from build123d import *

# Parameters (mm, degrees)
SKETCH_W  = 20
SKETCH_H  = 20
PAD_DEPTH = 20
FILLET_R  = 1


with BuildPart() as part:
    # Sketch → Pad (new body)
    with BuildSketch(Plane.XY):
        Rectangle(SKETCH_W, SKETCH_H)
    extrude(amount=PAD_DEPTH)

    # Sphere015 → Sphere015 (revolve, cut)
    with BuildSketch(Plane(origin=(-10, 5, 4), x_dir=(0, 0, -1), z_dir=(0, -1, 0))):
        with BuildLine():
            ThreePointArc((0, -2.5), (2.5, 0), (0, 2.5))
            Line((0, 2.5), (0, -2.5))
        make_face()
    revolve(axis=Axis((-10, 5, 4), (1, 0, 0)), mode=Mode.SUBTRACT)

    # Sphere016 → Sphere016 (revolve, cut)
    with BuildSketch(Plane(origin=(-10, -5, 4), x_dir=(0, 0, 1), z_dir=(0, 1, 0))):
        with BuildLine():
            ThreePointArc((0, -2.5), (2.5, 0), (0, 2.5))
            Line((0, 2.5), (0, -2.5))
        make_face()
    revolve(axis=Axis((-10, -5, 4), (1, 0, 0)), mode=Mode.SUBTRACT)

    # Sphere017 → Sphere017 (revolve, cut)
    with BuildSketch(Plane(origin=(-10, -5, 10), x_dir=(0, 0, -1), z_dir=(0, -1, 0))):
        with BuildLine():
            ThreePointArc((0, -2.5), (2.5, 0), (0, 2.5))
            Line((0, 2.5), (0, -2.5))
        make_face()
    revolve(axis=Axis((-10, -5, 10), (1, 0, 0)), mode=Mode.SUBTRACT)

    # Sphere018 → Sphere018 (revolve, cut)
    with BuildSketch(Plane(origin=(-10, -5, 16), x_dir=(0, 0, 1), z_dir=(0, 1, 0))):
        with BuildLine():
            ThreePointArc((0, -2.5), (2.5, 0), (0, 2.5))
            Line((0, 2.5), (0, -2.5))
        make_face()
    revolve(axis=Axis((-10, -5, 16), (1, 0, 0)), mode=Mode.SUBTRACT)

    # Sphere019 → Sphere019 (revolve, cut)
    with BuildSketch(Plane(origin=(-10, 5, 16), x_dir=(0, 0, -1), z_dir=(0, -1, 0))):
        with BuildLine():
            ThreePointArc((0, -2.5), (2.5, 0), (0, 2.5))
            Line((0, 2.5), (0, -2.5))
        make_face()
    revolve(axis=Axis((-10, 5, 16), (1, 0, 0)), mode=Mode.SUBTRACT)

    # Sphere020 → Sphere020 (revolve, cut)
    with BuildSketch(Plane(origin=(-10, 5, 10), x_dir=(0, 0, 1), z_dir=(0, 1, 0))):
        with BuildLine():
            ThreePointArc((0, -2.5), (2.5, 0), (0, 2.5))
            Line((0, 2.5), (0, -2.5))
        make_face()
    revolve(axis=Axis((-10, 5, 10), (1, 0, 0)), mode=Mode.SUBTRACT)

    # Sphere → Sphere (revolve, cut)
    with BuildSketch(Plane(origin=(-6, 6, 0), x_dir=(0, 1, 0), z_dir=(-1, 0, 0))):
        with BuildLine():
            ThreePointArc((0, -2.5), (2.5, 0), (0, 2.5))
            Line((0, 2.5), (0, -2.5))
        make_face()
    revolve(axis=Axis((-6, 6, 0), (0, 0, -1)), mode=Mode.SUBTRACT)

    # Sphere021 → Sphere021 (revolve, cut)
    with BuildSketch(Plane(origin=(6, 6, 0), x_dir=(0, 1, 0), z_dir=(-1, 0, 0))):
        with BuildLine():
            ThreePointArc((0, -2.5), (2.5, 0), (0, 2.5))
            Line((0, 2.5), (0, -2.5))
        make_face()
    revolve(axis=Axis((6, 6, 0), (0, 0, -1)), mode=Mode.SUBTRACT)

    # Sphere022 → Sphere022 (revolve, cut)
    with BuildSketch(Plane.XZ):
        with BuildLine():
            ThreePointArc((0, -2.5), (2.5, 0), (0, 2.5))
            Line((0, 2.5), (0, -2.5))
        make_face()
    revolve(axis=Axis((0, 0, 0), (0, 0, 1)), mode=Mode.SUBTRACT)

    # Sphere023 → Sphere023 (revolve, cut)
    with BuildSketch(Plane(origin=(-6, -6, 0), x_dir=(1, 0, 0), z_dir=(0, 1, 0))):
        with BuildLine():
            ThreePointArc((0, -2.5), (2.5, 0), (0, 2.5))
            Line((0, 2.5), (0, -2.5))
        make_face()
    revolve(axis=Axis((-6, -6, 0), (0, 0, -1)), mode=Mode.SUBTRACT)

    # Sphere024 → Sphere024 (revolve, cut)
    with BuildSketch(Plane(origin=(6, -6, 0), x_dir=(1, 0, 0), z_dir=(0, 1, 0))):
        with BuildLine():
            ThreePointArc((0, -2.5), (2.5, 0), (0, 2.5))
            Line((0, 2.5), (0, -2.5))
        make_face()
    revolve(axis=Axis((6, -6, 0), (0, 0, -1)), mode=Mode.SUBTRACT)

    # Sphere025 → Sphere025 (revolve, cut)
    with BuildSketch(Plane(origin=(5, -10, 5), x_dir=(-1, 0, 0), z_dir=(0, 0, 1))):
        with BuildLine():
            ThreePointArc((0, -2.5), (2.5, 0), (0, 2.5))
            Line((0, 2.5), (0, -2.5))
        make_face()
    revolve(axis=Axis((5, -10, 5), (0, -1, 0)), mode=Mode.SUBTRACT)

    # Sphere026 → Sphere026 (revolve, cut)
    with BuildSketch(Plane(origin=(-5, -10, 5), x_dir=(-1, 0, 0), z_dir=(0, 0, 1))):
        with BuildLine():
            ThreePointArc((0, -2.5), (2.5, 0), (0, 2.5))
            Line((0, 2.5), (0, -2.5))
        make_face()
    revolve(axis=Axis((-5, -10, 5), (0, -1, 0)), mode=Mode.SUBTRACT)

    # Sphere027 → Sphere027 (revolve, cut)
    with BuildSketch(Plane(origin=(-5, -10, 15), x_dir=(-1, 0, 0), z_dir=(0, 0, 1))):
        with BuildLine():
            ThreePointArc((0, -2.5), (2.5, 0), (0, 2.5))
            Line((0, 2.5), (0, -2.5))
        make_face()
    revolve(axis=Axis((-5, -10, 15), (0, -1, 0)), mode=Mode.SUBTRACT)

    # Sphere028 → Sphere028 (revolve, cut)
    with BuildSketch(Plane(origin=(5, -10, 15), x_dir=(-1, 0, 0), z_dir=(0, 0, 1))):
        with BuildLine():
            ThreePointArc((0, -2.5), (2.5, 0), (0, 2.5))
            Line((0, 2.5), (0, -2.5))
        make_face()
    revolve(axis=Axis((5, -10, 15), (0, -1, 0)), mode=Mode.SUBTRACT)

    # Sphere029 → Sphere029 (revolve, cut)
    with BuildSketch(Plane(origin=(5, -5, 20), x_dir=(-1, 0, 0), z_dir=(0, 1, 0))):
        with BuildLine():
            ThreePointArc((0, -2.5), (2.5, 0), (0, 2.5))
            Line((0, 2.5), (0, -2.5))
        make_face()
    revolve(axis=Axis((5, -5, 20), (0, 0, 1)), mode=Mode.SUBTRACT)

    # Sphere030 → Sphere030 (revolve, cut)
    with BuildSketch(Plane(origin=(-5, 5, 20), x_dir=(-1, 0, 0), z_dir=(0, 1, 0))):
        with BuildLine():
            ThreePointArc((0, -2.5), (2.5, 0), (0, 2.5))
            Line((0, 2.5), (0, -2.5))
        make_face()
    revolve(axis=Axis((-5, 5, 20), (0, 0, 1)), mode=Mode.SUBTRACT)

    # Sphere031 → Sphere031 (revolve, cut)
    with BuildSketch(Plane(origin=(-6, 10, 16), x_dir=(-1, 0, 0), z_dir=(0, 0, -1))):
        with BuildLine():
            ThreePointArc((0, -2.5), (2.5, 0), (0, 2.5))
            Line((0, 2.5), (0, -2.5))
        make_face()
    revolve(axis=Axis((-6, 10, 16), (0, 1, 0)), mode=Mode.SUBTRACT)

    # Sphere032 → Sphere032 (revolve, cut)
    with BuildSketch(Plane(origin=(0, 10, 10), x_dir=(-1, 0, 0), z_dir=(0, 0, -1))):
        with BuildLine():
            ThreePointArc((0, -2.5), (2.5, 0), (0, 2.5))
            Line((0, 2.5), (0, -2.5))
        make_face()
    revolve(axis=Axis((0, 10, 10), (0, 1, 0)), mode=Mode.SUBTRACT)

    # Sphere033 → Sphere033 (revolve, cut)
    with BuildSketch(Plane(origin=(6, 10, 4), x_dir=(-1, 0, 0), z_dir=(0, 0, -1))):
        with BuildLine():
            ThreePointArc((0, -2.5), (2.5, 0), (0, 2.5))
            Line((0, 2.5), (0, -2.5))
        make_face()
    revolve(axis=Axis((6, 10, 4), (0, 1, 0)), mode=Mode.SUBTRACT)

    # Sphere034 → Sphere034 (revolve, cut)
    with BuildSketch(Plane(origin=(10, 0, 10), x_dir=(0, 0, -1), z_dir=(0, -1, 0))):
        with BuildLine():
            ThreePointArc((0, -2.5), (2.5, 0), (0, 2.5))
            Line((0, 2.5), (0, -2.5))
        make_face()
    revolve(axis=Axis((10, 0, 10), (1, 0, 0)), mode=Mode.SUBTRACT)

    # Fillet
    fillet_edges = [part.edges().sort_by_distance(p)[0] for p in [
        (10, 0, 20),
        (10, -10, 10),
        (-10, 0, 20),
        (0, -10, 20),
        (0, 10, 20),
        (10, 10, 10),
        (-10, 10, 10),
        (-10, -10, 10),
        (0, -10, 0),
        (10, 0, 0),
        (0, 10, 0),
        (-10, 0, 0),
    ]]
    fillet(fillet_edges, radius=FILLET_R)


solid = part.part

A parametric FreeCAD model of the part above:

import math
import FreeCAD as App
import Part
import Sketcher
from FreeCAD import Vector
Q = App.Units.Quantity


def edges_at(feature, points):
    """Names of the edges that pass closest to the given points."""
    edges = feature.Shape.Edges
    near = lambda p: min(range(len(edges)), key=lambda i: edges[i].distToShape(Part.Vertex(*p))[0])
    return sorted({f"Edge{near(p) + 1}" for p in points})


def add_polygon(sketch, points):
    """Adds a closed chain of lines whose ends are joined by coincident constraints."""
    first, n = sketch.GeometryCount, len(points)
    for a, b in zip(points, points[1:] + points[:1]):
        sketch.addGeometry(Part.LineSegment(App.Vector(*a, 0), App.Vector(*b, 0)), False)
    for i in range(n):
        sketch.addConstraint(Sketcher.Constraint("Coincident", first + i, 2, first + (i + 1) % n, 1))

doc = App.newDocument("Part")
params = doc.addObject("Spreadsheet::Sheet", "Params")
for row, (alias, value) in enumerate([
    ("sketch1_width", "20 mm"),
    ("pad1_length", "20 mm"),
    ("sketch2_radius", "2.5 mm"),
    ("groove_angle", "360 deg"),
    ("sketch3_radius", "2.5 mm"),
    ("groove2_angle", "360 deg"),
    ("sketch4_radius", "2.5 mm"),
    ("groove3_angle", "360 deg"),
    ("sketch5_radius", "2.5 mm"),
    ("groove4_angle", "360 deg"),
    ("sketch6_radius", "2.5 mm"),
    ("groove5_angle", "360 deg"),
    ("sketch7_radius", "2.5 mm"),
    ("groove6_angle", "360 deg"),
    ("sketch8_radius", "2.5 mm"),
    ("groove7_angle", "360 deg"),
    ("sketch9_radius", "2.5 mm"),
    ("groove8_angle", "360 deg"),
    ("sketch10_radius", "2.5 mm"),
    ("groove9_angle", "360 deg"),
    ("sketch11_radius", "2.5 mm"),
    ("groove10_angle", "360 deg"),
    ("sketch12_radius", "2.5 mm"),
    ("groove11_angle", "360 deg"),
    ("sketch13_radius", "2.5 mm"),
    ("groove12_angle", "360 deg"),
    ("sketch14_radius", "2.5 mm"),
    ("groove13_angle", "360 deg"),
    ("sketch15_radius", "2.5 mm"),
    ("groove14_angle", "360 deg"),
    ("sketch16_radius", "2.5 mm"),
    ("groove15_angle", "360 deg"),
    ("sketch17_radius", "2.5 mm"),
    ("groove16_angle", "360 deg"),
    ("sketch18_radius", "2.5 mm"),
    ("groove17_angle", "360 deg"),
    ("sketch19_radius", "2.5 mm"),
    ("groove18_angle", "360 deg"),
    ("sketch20_radius", "2.5 mm"),
    ("groove19_angle", "360 deg"),
    ("sketch21_radius", "2.5 mm"),
    ("groove20_angle", "360 deg"),
    ("sketch22_radius", "2.5 mm"),
    ("groove21_angle", "360 deg"),
    ("fillet_radius", "1 mm"),
], start=1):
    params.set(f"A{row}", alias)
    params.set(f"B{row}", "=" + value)
    params.setAlias(f"B{row}", alias)

body = doc.addObject("PartDesign::Body", "Body")

# Sketch on XY plane
sketch1 = doc.addObject("Sketcher::SketchObject", "Sketch")
body.addObject(sketch1)
sketch1.AttachmentSupport = (doc.XY_Plane, [""])
sketch1.MapMode = "FlatFace"
add_polygon(sketch1, [(-10, 10), (-10, -10), (10, -10), (10, 10)])  # lines 0-3
sketch1.addConstraint([
    Sketcher.Constraint("Vertical", 0),
    Sketcher.Constraint("Horizontal", 1),
    Sketcher.Constraint("Vertical", 2),
    Sketcher.Constraint("Horizontal", 3),
    Sketcher.Constraint("Symmetric", 0, 2, 2, 2, -1, 1),
    Sketcher.Constraint("Equal", 3, 0),
    Sketcher.Constraint("DistanceX", 1, 1, 1, 2, Q("20 mm")),
])
sketch1.setExpression("Constraints[10]", "Params.sketch1_width")
pad1 = doc.addObject("PartDesign::Pad", "Pad")
body.addObject(pad1)
pad1.Profile = sketch1
pad1.setExpression("Length", "Params.pad1_length")

# Sketch on XZ plane
sketch2 = doc.addObject("Sketcher::SketchObject", "Sketch001")
body.addObject(sketch2)
sketch2.AttachmentSupport = (doc.XZ_Plane, [""])
sketch2.MapMode = "FlatFace"
sketch2.AttachmentOffset = App.Placement(Vector(0, 0, -5), App.Rotation())
sketch2.addGeometry([
    Part.ArcOfCircle(Part.Circle(Vector(-10, 4, 0), Vector(0, 0, 1), 2.5), math.radians(180), math.radians(360)),
    Part.LineSegment(Vector(-7.5, 4, 0), Vector(-12.5, 4, 0)),
], False)
sketch2.addGeometry(Part.LineSegment(Vector(-12.5, 4, 0), Vector(-7.5, 4, 0)), True)  # axis
sketch2.addConstraint([
    Sketcher.Constraint("Coincident", 0, 1, 1, 2),
    Sketcher.Constraint("Coincident", 1, 1, 0, 2),
    Sketcher.Constraint("Horizontal", 1),
    Sketcher.Constraint("Horizontal", 2),
    Sketcher.Constraint("Coincident", 2, 1, 0, 1),
    Sketcher.Constraint("Equal", 1, 2),
    Sketcher.Constraint("Radius", 0, Q("2.5 mm")),
    Sketcher.Constraint("DistanceX", 0, 3, -1, 1, Q("10 mm")),
    Sketcher.Constraint("DistanceY", -1, 1, 0, 3, Q("4 mm")),
    Sketcher.Constraint("DistanceY", -1, 1, 0, 1, Q("4 mm")),
])
sketch2.setExpression("Constraints[6]", "Params.sketch2_radius")
groove = doc.addObject("PartDesign::Groove", "Groove")
body.addObject(groove)
groove.Profile = sketch2
groove.ReferenceAxis = (sketch2, ["Axis0"])
groove.setExpression("Angle", "Params.groove_angle")

# Sketch on XZ plane
sketch3 = doc.addObject("Sketcher::SketchObject", "Sketch002")
body.addObject(sketch3)
sketch3.AttachmentSupport = (doc.XZ_Plane, [""])
sketch3.MapMode = "FlatFace"
sketch3.AttachmentOffset = App.Placement(Vector(0, 0, 5), App.Rotation())
sketch3.addGeometry([
    Part.ArcOfCircle(Part.Circle(Vector(-10, 4, 0), Vector(0, 0, 1), 2.5), math.radians(0), math.radians(180)),
    Part.LineSegment(Vector(-7.5, 4, 0), Vector(-12.5, 4, 0)),
], False)
sketch3.addGeometry(Part.LineSegment(Vector(-12.5, 4, 0), Vector(-7.5, 4, 0)), True)  # axis
sketch3.addConstraint([
    Sketcher.Constraint("Coincident", 0, 1, 1, 1),
    Sketcher.Constraint("Coincident", 1, 2, 0, 2),
    Sketcher.Constraint("Horizontal", 1),
    Sketcher.Constraint("Horizontal", 2),
    Sketcher.Constraint("Coincident", 2, 1, 1, 2),
    Sketcher.Constraint("Equal", 1, 2),
    Sketcher.Constraint("Radius", 0, Q("2.5 mm")),
    Sketcher.Constraint("DistanceX", 0, 3, -1, 1, Q("10 mm")),
    Sketcher.Constraint("DistanceY", -1, 1, 0, 3, Q("4 mm")),
    Sketcher.Constraint("DistanceY", -1, 1, 0, 1, Q("4 mm")),
])
sketch3.setExpression("Constraints[6]", "Params.sketch3_radius")
groove2 = doc.addObject("PartDesign::Groove", "Groove001")
body.addObject(groove2)
groove2.Profile = sketch3
groove2.ReferenceAxis = (sketch3, ["Axis0"])
groove2.setExpression("Angle", "Params.groove2_angle")

# Sketch on XZ plane
sketch4 = doc.addObject("Sketcher::SketchObject", "Sketch003")
body.addObject(sketch4)
sketch4.AttachmentSupport = (doc.XZ_Plane, [""])
sketch4.MapMode = "FlatFace"
sketch4.AttachmentOffset = App.Placement(Vector(0, 0, 5), App.Rotation())
sketch4.addGeometry([
    Part.ArcOfCircle(Part.Circle(Vector(-10, 10, 0), Vector(0, 0, 1), 2.5), math.radians(180), math.radians(360)),
    Part.LineSegment(Vector(-7.5, 10, 0), Vector(-12.5, 10, 0)),
], False)
sketch4.addGeometry(Part.LineSegment(Vector(-12.5, 10, 0), Vector(-7.5, 10, 0)), True)  # axis
sketch4.addConstraint([
    Sketcher.Constraint("Coincident", 0, 1, 1, 2),
    Sketcher.Constraint("Coincident", 1, 1, 0, 2),
    Sketcher.Constraint("Horizontal", 1),
    Sketcher.Constraint("Horizontal", 2),
    Sketcher.Constraint("Coincident", 2, 1, 0, 1),
    Sketcher.Constraint("Equal", 1, 2),
    Sketcher.Constraint("Radius", 0, Q("2.5 mm")),
    Sketcher.Constraint("DistanceX", 0, 3, -1, 1, Q("10 mm")),
    Sketcher.Constraint("DistanceY", -1, 1, 0, 3, Q("10 mm")),
    Sketcher.Constraint("DistanceY", -1, 1, 0, 1, Q("10 mm")),
])
sketch4.setExpression("Constraints[6]", "Params.sketch4_radius")
groove3 = doc.addObject("PartDesign::Groove", "Groove002")
body.addObject(groove3)
groove3.Profile = sketch4
groove3.ReferenceAxis = (sketch4, ["Axis0"])
groove3.setExpression("Angle", "Params.groove3_angle")

# Sketch on XZ plane
sketch5 = doc.addObject("Sketcher::SketchObject", "Sketch004")
body.addObject(sketch5)
sketch5.AttachmentSupport = (doc.XZ_Plane, [""])
sketch5.MapMode = "FlatFace"
sketch5.AttachmentOffset = App.Placement(Vector(0, 0, 5), App.Rotation())
sketch5.addGeometry([
    Part.ArcOfCircle(Part.Circle(Vector(-10, 16, 0), Vector(0, 0, 1), 2.5), math.radians(0), math.radians(180)),
    Part.LineSegment(Vector(-7.5, 16, 0), Vector(-12.5, 16, 0)),
], False)
sketch5.addGeometry(Part.LineSegment(Vector(-12.5, 16, 0), Vector(-7.5, 16, 0)), True)  # axis
sketch5.addConstraint([
    Sketcher.Constraint("Coincident", 0, 1, 1, 1),
    Sketcher.Constraint("Coincident", 1, 2, 0, 2),
    Sketcher.Constraint("Horizontal", 1),
    Sketcher.Constraint("Horizontal", 2),
    Sketcher.Constraint("Coincident", 2, 1, 1, 2),
    Sketcher.Constraint("Equal", 1, 2),
    Sketcher.Constraint("Radius", 0, Q("2.5 mm")),
    Sketcher.Constraint("DistanceX", 0, 3, -1, 1, Q("10 mm")),
    Sketcher.Constraint("DistanceY", -1, 1, 0, 3, Q("16 mm")),
    Sketcher.Constraint("DistanceY", -1, 1, 0, 1, Q("16 mm")),
])
sketch5.setExpression("Constraints[6]", "Params.sketch5_radius")
groove4 = doc.addObject("PartDesign::Groove", "Groove003")
body.addObject(groove4)
groove4.Profile = sketch5
groove4.ReferenceAxis = (sketch5, ["Axis0"])
groove4.setExpression("Angle", "Params.groove4_angle")

# Sketch on XZ plane
sketch6 = doc.addObject("Sketcher::SketchObject", "Sketch005")
body.addObject(sketch6)
sketch6.AttachmentSupport = (doc.XZ_Plane, [""])
sketch6.MapMode = "FlatFace"
sketch6.AttachmentOffset = App.Placement(Vector(0, 0, -5), App.Rotation())
sketch6.addGeometry([
    Part.ArcOfCircle(Part.Circle(Vector(-10, 16, 0), Vector(0, 0, 1), 2.5), math.radians(180), math.radians(360)),
    Part.LineSegment(Vector(-7.5, 16, 0), Vector(-12.5, 16, 0)),
], False)
sketch6.addGeometry(Part.LineSegment(Vector(-12.5, 16, 0), Vector(-7.5, 16, 0)), True)  # axis
sketch6.addConstraint([
    Sketcher.Constraint("Coincident", 0, 1, 1, 2),
    Sketcher.Constraint("Coincident", 1, 1, 0, 2),
    Sketcher.Constraint("Horizontal", 1),
    Sketcher.Constraint("Horizontal", 2),
    Sketcher.Constraint("Coincident", 2, 1, 0, 1),
    Sketcher.Constraint("Equal", 1, 2),
    Sketcher.Constraint("Radius", 0, Q("2.5 mm")),
    Sketcher.Constraint("DistanceX", 0, 3, -1, 1, Q("10 mm")),
    Sketcher.Constraint("DistanceY", -1, 1, 0, 3, Q("16 mm")),
    Sketcher.Constraint("DistanceY", -1, 1, 0, 1, Q("16 mm")),
])
sketch6.setExpression("Constraints[6]", "Params.sketch6_radius")
groove5 = doc.addObject("PartDesign::Groove", "Groove004")
body.addObject(groove5)
groove5.Profile = sketch6
groove5.ReferenceAxis = (sketch6, ["Axis0"])
groove5.setExpression("Angle", "Params.groove5_angle")

# Sketch on XZ plane
sketch7 = doc.addObject("Sketcher::SketchObject", "Sketch006")
body.addObject(sketch7)
sketch7.AttachmentSupport = (doc.XZ_Plane, [""])
sketch7.MapMode = "FlatFace"
sketch7.AttachmentOffset = App.Placement(Vector(0, 0, -5), App.Rotation())
sketch7.addGeometry([
    Part.ArcOfCircle(Part.Circle(Vector(-10, 10, 0), Vector(0, 0, 1), 2.5), math.radians(0), math.radians(180)),
    Part.LineSegment(Vector(-7.5, 10, 0), Vector(-12.5, 10, 0)),
], False)
sketch7.addGeometry(Part.LineSegment(Vector(-12.5, 10, 0), Vector(-7.5, 10, 0)), True)  # axis
sketch7.addConstraint([
    Sketcher.Constraint("Coincident", 0, 1, 1, 1),
    Sketcher.Constraint("Coincident", 1, 2, 0, 2),
    Sketcher.Constraint("Horizontal", 1),
    Sketcher.Constraint("Horizontal", 2),
    Sketcher.Constraint("Coincident", 2, 1, 1, 2),
    Sketcher.Constraint("Equal", 1, 2),
    Sketcher.Constraint("Radius", 0, Q("2.5 mm")),
    Sketcher.Constraint("DistanceX", 0, 3, -1, 1, Q("10 mm")),
    Sketcher.Constraint("DistanceY", -1, 1, 0, 3, Q("10 mm")),
    Sketcher.Constraint("DistanceY", -1, 1, 0, 1, Q("10 mm")),
])
sketch7.setExpression("Constraints[6]", "Params.sketch7_radius")
groove6 = doc.addObject("PartDesign::Groove", "Groove005")
body.addObject(groove6)
groove6.Profile = sketch7
groove6.ReferenceAxis = (sketch7, ["Axis0"])
groove6.setExpression("Angle", "Params.groove6_angle")

# Sketch on YZ plane
sketch8 = doc.addObject("Sketcher::SketchObject", "Sketch007")
body.addObject(sketch8)
sketch8.AttachmentSupport = (doc.YZ_Plane, [""])
sketch8.MapMode = "FlatFace"
sketch8.AttachmentOffset = App.Placement(Vector(0, 0, -6), App.Rotation())
sketch8.addGeometry([
    Part.ArcOfCircle(Part.Circle(Vector(6, 0, 0), Vector(0, 0, 1), 2.5), math.radians(-90), math.radians(90)),
    Part.LineSegment(Vector(6, -2.5, 0), Vector(6, 2.5, 0)),
], False)
sketch8.addGeometry(Part.LineSegment(Vector(6, 2.5, 0), Vector(6, -2.5, 0)), True)  # axis
sketch8.addConstraint([
    Sketcher.Constraint("Coincident", 0, 1, 1, 1),
    Sketcher.Constraint("Coincident", 1, 2, 0, 2),
    Sketcher.Constraint("Vertical", 1),
    Sketcher.Constraint("Vertical", 2),
    Sketcher.Constraint("Coincident", 2, 1, 1, 2),
    Sketcher.Constraint("PointOnObject", 0, 3, -1),
    Sketcher.Constraint("Equal", 1, 2),
    Sketcher.Constraint("Radius", 0, Q("2.5 mm")),
    Sketcher.Constraint("DistanceX", -1, 1, 0, 3, Q("6 mm")),
    Sketcher.Constraint("DistanceX", -1, 1, 0, 1, Q("6 mm")),
])
sketch8.setExpression("Constraints[7]", "Params.sketch8_radius")
groove7 = doc.addObject("PartDesign::Groove", "Groove006")
body.addObject(groove7)
groove7.Profile = sketch8
groove7.ReferenceAxis = (sketch8, ["Axis0"])
groove7.setExpression("Angle", "Params.groove7_angle")

# Sketch on YZ plane
sketch9 = doc.addObject("Sketcher::SketchObject", "Sketch008")
body.addObject(sketch9)
sketch9.AttachmentSupport = (doc.YZ_Plane, [""])
sketch9.MapMode = "FlatFace"
sketch9.AttachmentOffset = App.Placement(Vector(0, 0, 6), App.Rotation())
sketch9.addGeometry([
    Part.ArcOfCircle(Part.Circle(Vector(6, 0, 0), Vector(0, 0, 1), 2.5), math.radians(-90), math.radians(90)),
    Part.LineSegment(Vector(6, -2.5, 0), Vector(6, 2.5, 0)),
], False)
sketch9.addGeometry(Part.LineSegment(Vector(6, 2.5, 0), Vector(6, -2.5, 0)), True)  # axis
sketch9.addConstraint([
    Sketcher.Constraint("Coincident", 0, 1, 1, 1),
    Sketcher.Constraint("Coincident", 1, 2, 0, 2),
    Sketcher.Constraint("Vertical", 1),
    Sketcher.Constraint("Vertical", 2),
    Sketcher.Constraint("Coincident", 2, 1, 1, 2),
    Sketcher.Constraint("PointOnObject", 0, 3, -1),
    Sketcher.Constraint("Equal", 1, 2),
    Sketcher.Constraint("Radius", 0, Q("2.5 mm")),
    Sketcher.Constraint("DistanceX", -1, 1, 0, 3, Q("6 mm")),
    Sketcher.Constraint("DistanceX", -1, 1, 0, 1, Q("6 mm")),
])
sketch9.setExpression("Constraints[7]", "Params.sketch9_radius")
groove8 = doc.addObject("PartDesign::Groove", "Groove007")
body.addObject(groove8)
groove8.Profile = sketch9
groove8.ReferenceAxis = (sketch9, ["Axis0"])
groove8.setExpression("Angle", "Params.groove8_angle")

# Sketch on XZ plane
sketch10 = doc.addObject("Sketcher::SketchObject", "Sketch009")
body.addObject(sketch10)
sketch10.AttachmentSupport = (doc.XZ_Plane, [""])
sketch10.MapMode = "FlatFace"
sketch10.addGeometry([
    Part.ArcOfCircle(Part.Circle(Vector(0, 0, 0), Vector(0, 0, 1), 2.5), math.radians(-90), math.radians(90)),
    Part.LineSegment(Vector(0, 2.5, 0), Vector(0, -2.5, 0)),
], False)
sketch10.addConstraint([
    Sketcher.Constraint("Coincident", 0, 1, 1, 2),
    Sketcher.Constraint("Coincident", 1, 1, 0, 2),
    Sketcher.Constraint("Vertical", 1),
    Sketcher.Constraint("Coincident", 0, 3, -1, 1),
    Sketcher.Constraint("PointOnObject", 0, 1, -2),
    Sketcher.Constraint("Radius", 0, Q("2.5 mm")),
])
sketch10.setExpression("Constraints[5]", "Params.sketch10_radius")
groove9 = doc.addObject("PartDesign::Groove", "Groove008")
body.addObject(groove9)
groove9.Profile = sketch10
groove9.ReferenceAxis = (sketch10, ["V_Axis"])
groove9.setExpression("Angle", "Params.groove9_angle")

# Sketch on XZ plane
sketch11 = doc.addObject("Sketcher::SketchObject", "Sketch010")
body.addObject(sketch11)
sketch11.AttachmentSupport = (doc.XZ_Plane, [""])
sketch11.MapMode = "FlatFace"
sketch11.AttachmentOffset = App.Placement(Vector(0, 0, 6), App.Rotation())
sketch11.addGeometry([
    Part.ArcOfCircle(Part.Circle(Vector(-6, 0, 0), Vector(0, 0, 1), 2.5), math.radians(-90), math.radians(90)),
    Part.LineSegment(Vector(-6, -2.5, 0), Vector(-6, 2.5, 0)),
], False)
sketch11.addGeometry(Part.LineSegment(Vector(-6, 2.5, 0), Vector(-6, -2.5, 0)), True)  # axis
sketch11.addConstraint([
    Sketcher.Constraint("Coincident", 0, 1, 1, 1),
    Sketcher.Constraint("Coincident", 1, 2, 0, 2),
    Sketcher.Constraint("Vertical", 1),
    Sketcher.Constraint("Vertical", 2),
    Sketcher.Constraint("Coincident", 2, 1, 1, 2),
    Sketcher.Constraint("PointOnObject", 0, 3, -1),
    Sketcher.Constraint("Equal", 1, 2),
    Sketcher.Constraint("Radius", 0, Q("2.5 mm")),
    Sketcher.Constraint("DistanceX", 0, 3, -1, 1, Q("6 mm")),
    Sketcher.Constraint("DistanceX", 0, 1, -1, 1, Q("6 mm")),
])
sketch11.setExpression("Constraints[7]", "Params.sketch11_radius")
groove10 = doc.addObject("PartDesign::Groove", "Groove009")
body.addObject(groove10)
groove10.Profile = sketch11
groove10.ReferenceAxis = (sketch11, ["Axis0"])
groove10.setExpression("Angle", "Params.groove10_angle")

# Sketch on XZ plane
sketch12 = doc.addObject("Sketcher::SketchObject", "Sketch011")
body.addObject(sketch12)
sketch12.AttachmentSupport = (doc.XZ_Plane, [""])
sketch12.MapMode = "FlatFace"
sketch12.AttachmentOffset = App.Placement(Vector(0, 0, 6), App.Rotation())
sketch12.addGeometry([
    Part.ArcOfCircle(Part.Circle(Vector(6, 0, 0), Vector(0, 0, 1), 2.5), math.radians(-90), math.radians(90)),
    Part.LineSegment(Vector(6, -2.5, 0), Vector(6, 2.5, 0)),
], False)
sketch12.addGeometry(Part.LineSegment(Vector(6, 2.5, 0), Vector(6, -2.5, 0)), True)  # axis
sketch12.addConstraint([
    Sketcher.Constraint("Coincident", 0, 1, 1, 1),
    Sketcher.Constraint("Coincident", 1, 2, 0, 2),
    Sketcher.Constraint("Vertical", 1),
    Sketcher.Constraint("Vertical", 2),
    Sketcher.Constraint("Coincident", 2, 1, 1, 2),
    Sketcher.Constraint("PointOnObject", 0, 3, -1),
    Sketcher.Constraint("Equal", 1, 2),
    Sketcher.Constraint("Radius", 0, Q("2.5 mm")),
    Sketcher.Constraint("DistanceX", -1, 1, 0, 3, Q("6 mm")),
    Sketcher.Constraint("DistanceX", -1, 1, 0, 1, Q("6 mm")),
])
sketch12.setExpression("Constraints[7]", "Params.sketch12_radius")
groove11 = doc.addObject("PartDesign::Groove", "Groove010")
body.addObject(groove11)
groove11.Profile = sketch12
groove11.ReferenceAxis = (sketch12, ["Axis0"])
groove11.setExpression("Angle", "Params.groove11_angle")

# Sketch on XY plane
sketch13 = doc.addObject("Sketcher::SketchObject", "Sketch012")
body.addObject(sketch13)
sketch13.AttachmentSupport = (doc.XY_Plane, [""])
sketch13.MapMode = "FlatFace"
sketch13.AttachmentOffset = App.Placement(Vector(0, 0, 5), App.Rotation())
sketch13.addGeometry([
    Part.ArcOfCircle(Part.Circle(Vector(5, -10, 0), Vector(0, 0, 1), 2.5), math.radians(90), math.radians(270)),
    Part.LineSegment(Vector(5, -12.5, 0), Vector(5, -7.5, 0)),
], False)
sketch13.addGeometry(Part.LineSegment(Vector(5, -7.5, 0), Vector(5, -12.5, 0)), True)  # axis
sketch13.addConstraint([
    Sketcher.Constraint("Coincident", 0, 1, 1, 2),
    Sketcher.Constraint("Coincident", 1, 1, 0, 2),
    Sketcher.Constraint("Vertical", 1),
    Sketcher.Constraint("Vertical", 2),
    Sketcher.Constraint("Coincident", 2, 1, 0, 1),
    Sketcher.Constraint("Equal", 1, 2),
    Sketcher.Constraint("Radius", 0, Q("2.5 mm")),
    Sketcher.Constraint("DistanceX", -1, 1, 0, 3, Q("5 mm")),
    Sketcher.Constraint("DistanceY", 0, 3, -1, 1, Q("10 mm")),
    Sketcher.Constraint("DistanceX", -1, 1, 0, 1, Q("5 mm")),
])
sketch13.setExpression("Constraints[6]", "Params.sketch13_radius")
groove12 = doc.addObject("PartDesign::Groove", "Groove011")
body.addObject(groove12)
groove12.Profile = sketch13
groove12.ReferenceAxis = (sketch13, ["Axis0"])
groove12.setExpression("Angle", "Params.groove12_angle")

# Sketch on XY plane
sketch14 = doc.addObject("Sketcher::SketchObject", "Sketch013")
body.addObject(sketch14)
sketch14.AttachmentSupport = (doc.XY_Plane, [""])
sketch14.MapMode = "FlatFace"
sketch14.AttachmentOffset = App.Placement(Vector(0, 0, 5), App.Rotation())
sketch14.addGeometry([
    Part.ArcOfCircle(Part.Circle(Vector(-5, -10, 0), Vector(0, 0, 1), 2.5), math.radians(90), math.radians(270)),
    Part.LineSegment(Vector(-5, -12.5, 0), Vector(-5, -7.5, 0)),
], False)
sketch14.addGeometry(Part.LineSegment(Vector(-5, -7.5, 0), Vector(-5, -12.5, 0)), True)  # axis
sketch14.addConstraint([
    Sketcher.Constraint("Coincident", 0, 1, 1, 2),
    Sketcher.Constraint("Coincident", 1, 1, 0, 2),
    Sketcher.Constraint("Vertical", 1),
    Sketcher.Constraint("Vertical", 2),
    Sketcher.Constraint("Coincident", 2, 1, 0, 1),
    Sketcher.Constraint("Equal", 1, 2),
    Sketcher.Constraint("Radius", 0, Q("2.5 mm")),
    Sketcher.Constraint("DistanceX", 0, 3, -1, 1, Q("5 mm")),
    Sketcher.Constraint("DistanceY", 0, 3, -1, 1, Q("10 mm")),
    Sketcher.Constraint("DistanceX", 0, 1, -1, 1, Q("5 mm")),
])
sketch14.setExpression("Constraints[6]", "Params.sketch14_radius")
groove13 = doc.addObject("PartDesign::Groove", "Groove012")
body.addObject(groove13)
groove13.Profile = sketch14
groove13.ReferenceAxis = (sketch14, ["Axis0"])
groove13.setExpression("Angle", "Params.groove13_angle")

# Sketch on XY plane
sketch15 = doc.addObject("Sketcher::SketchObject", "Sketch014")
body.addObject(sketch15)
sketch15.AttachmentSupport = (doc.XY_Plane, [""])
sketch15.MapMode = "FlatFace"
sketch15.AttachmentOffset = App.Placement(Vector(0, 0, 15), App.Rotation())
sketch15.addGeometry([
    Part.ArcOfCircle(Part.Circle(Vector(-5, -10, 0), Vector(0, 0, 1), 2.5), math.radians(90), math.radians(270)),
    Part.LineSegment(Vector(-5, -12.5, 0), Vector(-5, -7.5, 0)),
], False)
sketch15.addGeometry(Part.LineSegment(Vector(-5, -7.5, 0), Vector(-5, -12.5, 0)), True)  # axis
sketch15.addConstraint([
    Sketcher.Constraint("Coincident", 0, 1, 1, 2),
    Sketcher.Constraint("Coincident", 1, 1, 0, 2),
    Sketcher.Constraint("Vertical", 1),
    Sketcher.Constraint("Vertical", 2),
    Sketcher.Constraint("Coincident", 2, 1, 0, 1),
    Sketcher.Constraint("Equal", 1, 2),
    Sketcher.Constraint("Radius", 0, Q("2.5 mm")),
    Sketcher.Constraint("DistanceX", 0, 3, -1, 1, Q("5 mm")),
    Sketcher.Constraint("DistanceY", 0, 3, -1, 1, Q("10 mm")),
    Sketcher.Constraint("DistanceX", 0, 1, -1, 1, Q("5 mm")),
])
sketch15.setExpression("Constraints[6]", "Params.sketch15_radius")
groove14 = doc.addObject("PartDesign::Groove", "Groove013")
body.addObject(groove14)
groove14.Profile = sketch15
groove14.ReferenceAxis = (sketch15, ["Axis0"])
groove14.setExpression("Angle", "Params.groove14_angle")

# Sketch on XY plane
sketch16 = doc.addObject("Sketcher::SketchObject", "Sketch015")
body.addObject(sketch16)
sketch16.AttachmentSupport = (doc.XY_Plane, [""])
sketch16.MapMode = "FlatFace"
sketch16.AttachmentOffset = App.Placement(Vector(0, 0, 15), App.Rotation())
sketch16.addGeometry([
    Part.ArcOfCircle(Part.Circle(Vector(5, -10, 0), Vector(0, 0, 1), 2.5), math.radians(90), math.radians(270)),
    Part.LineSegment(Vector(5, -12.5, 0), Vector(5, -7.5, 0)),
], False)
sketch16.addGeometry(Part.LineSegment(Vector(5, -7.5, 0), Vector(5, -12.5, 0)), True)  # axis
sketch16.addConstraint([
    Sketcher.Constraint("Coincident", 0, 1, 1, 2),
    Sketcher.Constraint("Coincident", 1, 1, 0, 2),
    Sketcher.Constraint("Vertical", 1),
    Sketcher.Constraint("Vertical", 2),
    Sketcher.Constraint("Coincident", 2, 1, 0, 1),
    Sketcher.Constraint("Equal", 1, 2),
    Sketcher.Constraint("Radius", 0, Q("2.5 mm")),
    Sketcher.Constraint("DistanceX", -1, 1, 0, 3, Q("5 mm")),
    Sketcher.Constraint("DistanceY", 0, 3, -1, 1, Q("10 mm")),
    Sketcher.Constraint("DistanceX", -1, 1, 0, 1, Q("5 mm")),
])
sketch16.setExpression("Constraints[6]", "Params.sketch16_radius")
groove15 = doc.addObject("PartDesign::Groove", "Groove014")
body.addObject(groove15)
groove15.Profile = sketch16
groove15.ReferenceAxis = (sketch16, ["Axis0"])
groove15.setExpression("Angle", "Params.groove15_angle")

# Sketch on XZ plane
sketch17 = doc.addObject("Sketcher::SketchObject", "Sketch016")
body.addObject(sketch17)
sketch17.AttachmentSupport = (doc.XZ_Plane, [""])
sketch17.MapMode = "FlatFace"
sketch17.AttachmentOffset = App.Placement(Vector(0, 0, 5), App.Rotation())
sketch17.addGeometry([
    Part.ArcOfCircle(Part.Circle(Vector(5, 20, 0), Vector(0, 0, 1), 2.5), math.radians(90), math.radians(270)),
    Part.LineSegment(Vector(5, 22.5, 0), Vector(5, 17.5, 0)),
], False)
sketch17.addGeometry(Part.LineSegment(Vector(5, 17.5, 0), Vector(5, 22.5, 0)), True)  # axis
sketch17.addConstraint([
    Sketcher.Constraint("Coincident", 0, 1, 1, 1),
    Sketcher.Constraint("Coincident", 1, 2, 0, 2),
    Sketcher.Constraint("Vertical", 1),
    Sketcher.Constraint("Vertical", 2),
    Sketcher.Constraint("Coincident", 2, 1, 1, 2),
    Sketcher.Constraint("Equal", 1, 2),
    Sketcher.Constraint("Radius", 0, Q("2.5 mm")),
    Sketcher.Constraint("DistanceX", -1, 1, 0, 3, Q("5 mm")),
    Sketcher.Constraint("DistanceY", -1, 1, 0, 3, Q("20 mm")),
    Sketcher.Constraint("DistanceX", -1, 1, 0, 1, Q("5 mm")),
])
sketch17.setExpression("Constraints[6]", "Params.sketch17_radius")
groove16 = doc.addObject("PartDesign::Groove", "Groove015")
body.addObject(groove16)
groove16.Profile = sketch17
groove16.ReferenceAxis = (sketch17, ["Axis0"])
groove16.setExpression("Angle", "Params.groove16_angle")

# Sketch on XZ plane
sketch18 = doc.addObject("Sketcher::SketchObject", "Sketch017")
body.addObject(sketch18)
sketch18.AttachmentSupport = (doc.XZ_Plane, [""])
sketch18.MapMode = "FlatFace"
sketch18.AttachmentOffset = App.Placement(Vector(0, 0, -5), App.Rotation())
sketch18.addGeometry([
    Part.ArcOfCircle(Part.Circle(Vector(-5, 20, 0), Vector(0, 0, 1), 2.5), math.radians(90), math.radians(270)),
    Part.LineSegment(Vector(-5, 22.5, 0), Vector(-5, 17.5, 0)),
], False)
sketch18.addGeometry(Part.LineSegment(Vector(-5, 17.5, 0), Vector(-5, 22.5, 0)), True)  # axis
sketch18.addConstraint([
    Sketcher.Constraint("Coincident", 0, 1, 1, 1),
    Sketcher.Constraint("Coincident", 1, 2, 0, 2),
    Sketcher.Constraint("Vertical", 1),
    Sketcher.Constraint("Vertical", 2),
    Sketcher.Constraint("Coincident", 2, 1, 1, 2),
    Sketcher.Constraint("Equal", 1, 2),
    Sketcher.Constraint("Radius", 0, Q("2.5 mm")),
    Sketcher.Constraint("DistanceX", 0, 3, -1, 1, Q("5 mm")),
    Sketcher.Constraint("DistanceY", -1, 1, 0, 3, Q("20 mm")),
    Sketcher.Constraint("DistanceX", 0, 1, -1, 1, Q("5 mm")),
])
sketch18.setExpression("Constraints[6]", "Params.sketch18_radius")
groove17 = doc.addObject("PartDesign::Groove", "Groove016")
body.addObject(groove17)
groove17.Profile = sketch18
groove17.ReferenceAxis = (sketch18, ["Axis0"])
groove17.setExpression("Angle", "Params.groove17_angle")

# Sketch on XY plane
sketch19 = doc.addObject("Sketcher::SketchObject", "Sketch018")
body.addObject(sketch19)
sketch19.AttachmentSupport = (doc.XY_Plane, [""])
sketch19.MapMode = "FlatFace"
sketch19.AttachmentOffset = App.Placement(Vector(0, 0, 16), App.Rotation())
sketch19.addGeometry([
    Part.ArcOfCircle(Part.Circle(Vector(-6, 10, 0), Vector(0, 0, 1), 2.5), math.radians(90), math.radians(270)),
    Part.LineSegment(Vector(-6, 12.5, 0), Vector(-6, 7.5, 0)),
], False)
sketch19.addGeometry(Part.LineSegment(Vector(-6, 7.5, 0), Vector(-6, 12.5, 0)), True)  # axis
sketch19.addConstraint([
    Sketcher.Constraint("Coincident", 0, 1, 1, 1),
    Sketcher.Constraint("Coincident", 1, 2, 0, 2),
    Sketcher.Constraint("Vertical", 1),
    Sketcher.Constraint("Vertical", 2),
    Sketcher.Constraint("Coincident", 2, 1, 1, 2),
    Sketcher.Constraint("Equal", 1, 2),
    Sketcher.Constraint("Radius", 0, Q("2.5 mm")),
    Sketcher.Constraint("DistanceX", 0, 3, -1, 1, Q("6 mm")),
    Sketcher.Constraint("DistanceY", -1, 1, 0, 3, Q("10 mm")),
    Sketcher.Constraint("DistanceX", 0, 1, -1, 1, Q("6 mm")),
])
sketch19.setExpression("Constraints[6]", "Params.sketch19_radius")
groove18 = doc.addObject("PartDesign::Groove", "Groove017")
body.addObject(groove18)
groove18.Profile = sketch19
groove18.ReferenceAxis = (sketch19, ["Axis0"])
groove18.setExpression("Angle", "Params.groove18_angle")

# Sketch on XY plane
sketch20 = doc.addObject("Sketcher::SketchObject", "Sketch019")
body.addObject(sketch20)
sketch20.AttachmentSupport = (doc.XY_Plane, [""])
sketch20.MapMode = "FlatFace"
sketch20.AttachmentOffset = App.Placement(Vector(0, 0, 10), App.Rotation())
sketch20.addGeometry([
    Part.ArcOfCircle(Part.Circle(Vector(0, 10, 0), Vector(0, 0, 1), 2.5), math.radians(90), math.radians(270)),
    Part.LineSegment(Vector(0, 12.5, 0), Vector(0, 7.5, 0)),
], False)
sketch20.addConstraint([
    Sketcher.Constraint("Coincident", 0, 1, 1, 1),
    Sketcher.Constraint("Coincident", 1, 2, 0, 2),
    Sketcher.Constraint("Vertical", 1),
    Sketcher.Constraint("PointOnObject", 0, 3, -2),
    Sketcher.Constraint("PointOnObject", 0, 1, -2),
    Sketcher.Constraint("Radius", 0, Q("2.5 mm")),
    Sketcher.Constraint("DistanceY", -1, 1, 0, 3, Q("10 mm")),
])
sketch20.setExpression("Constraints[5]", "Params.sketch20_radius")
groove19 = doc.addObject("PartDesign::Groove", "Groove018")
body.addObject(groove19)
groove19.Profile = sketch20
groove19.ReferenceAxis = (sketch20, ["V_Axis"])
groove19.setExpression("Angle", "Params.groove19_angle")

# Sketch on XY plane
sketch21 = doc.addObject("Sketcher::SketchObject", "Sketch020")
body.addObject(sketch21)
sketch21.AttachmentSupport = (doc.XY_Plane, [""])
sketch21.MapMode = "FlatFace"
sketch21.AttachmentOffset = App.Placement(Vector(0, 0, 4), App.Rotation())
sketch21.addGeometry([
    Part.ArcOfCircle(Part.Circle(Vector(6, 10, 0), Vector(0, 0, 1), 2.5), math.radians(90), math.radians(270)),
    Part.LineSegment(Vector(6, 12.5, 0), Vector(6, 7.5, 0)),
], False)
sketch21.addGeometry(Part.LineSegment(Vector(6, 7.5, 0), Vector(6, 12.5, 0)), True)  # axis
sketch21.addConstraint([
    Sketcher.Constraint("Coincident", 0, 1, 1, 1),
    Sketcher.Constraint("Coincident", 1, 2, 0, 2),
    Sketcher.Constraint("Vertical", 1),
    Sketcher.Constraint("Vertical", 2),
    Sketcher.Constraint("Coincident", 2, 1, 1, 2),
    Sketcher.Constraint("Equal", 1, 2),
    Sketcher.Constraint("Radius", 0, Q("2.5 mm")),
    Sketcher.Constraint("DistanceX", -1, 1, 0, 3, Q("6 mm")),
    Sketcher.Constraint("DistanceY", -1, 1, 0, 3, Q("10 mm")),
    Sketcher.Constraint("DistanceX", -1, 1, 0, 1, Q("6 mm")),
])
sketch21.setExpression("Constraints[6]", "Params.sketch21_radius")
groove20 = doc.addObject("PartDesign::Groove", "Groove019")
body.addObject(groove20)
groove20.Profile = sketch21
groove20.ReferenceAxis = (sketch21, ["Axis0"])
groove20.setExpression("Angle", "Params.groove20_angle")

# Sketch on XZ plane
sketch22 = doc.addObject("Sketcher::SketchObject", "Sketch021")
body.addObject(sketch22)
sketch22.AttachmentSupport = (doc.XZ_Plane, [""])
sketch22.MapMode = "FlatFace"
sketch22.addGeometry([
    Part.ArcOfCircle(Part.Circle(Vector(10, 10, 0), Vector(0, 0, 1), 2.5), math.radians(180), math.radians(360)),
    Part.LineSegment(Vector(12.5, 10, 0), Vector(7.5, 10, 0)),
], False)
sketch22.addGeometry(Part.LineSegment(Vector(7.5, 10, 0), Vector(12.5, 10, 0)), True)  # axis
sketch22.addConstraint([
    Sketcher.Constraint("Coincident", 0, 1, 1, 2),
    Sketcher.Constraint("Coincident", 1, 1, 0, 2),
    Sketcher.Constraint("Horizontal", 1),
    Sketcher.Constraint("Horizontal", 2),
    Sketcher.Constraint("Coincident", 2, 1, 0, 1),
    Sketcher.Constraint("Equal", 1, 2),
    Sketcher.Constraint("Radius", 0, Q("2.5 mm")),
    Sketcher.Constraint("DistanceX", -1, 1, 0, 3, Q("10 mm")),
    Sketcher.Constraint("DistanceY", -1, 1, 0, 3, Q("10 mm")),
    Sketcher.Constraint("DistanceY", -1, 1, 0, 1, Q("10 mm")),
])
sketch22.setExpression("Constraints[6]", "Params.sketch22_radius")
groove21 = doc.addObject("PartDesign::Groove", "Groove020")
body.addObject(groove21)
groove21.Profile = sketch22
groove21.ReferenceAxis = (sketch22, ["Axis0"])
groove21.setExpression("Angle", "Params.groove21_angle")
doc.recompute()

fillet = doc.addObject("PartDesign::Fillet", "Fillet")
body.addObject(fillet)
fillet.Base = (groove21, edges_at(groove21, [
    (10, 0, 20),
    (10, -10, 10),
    (-10, 0, 20),
    (0, -10, 20),
    (0, 10, 20),
    (10, 10, 10),
    (-10, 10, 10),
    (-10, -10, 10),
    (0, -10, 0),
    (10, 0, 0),
    (0, 10, 0),
    (-10, 0, 0),
]))
fillet.setExpression("Radius", "Params.fillet_radius")

doc.recompute()
